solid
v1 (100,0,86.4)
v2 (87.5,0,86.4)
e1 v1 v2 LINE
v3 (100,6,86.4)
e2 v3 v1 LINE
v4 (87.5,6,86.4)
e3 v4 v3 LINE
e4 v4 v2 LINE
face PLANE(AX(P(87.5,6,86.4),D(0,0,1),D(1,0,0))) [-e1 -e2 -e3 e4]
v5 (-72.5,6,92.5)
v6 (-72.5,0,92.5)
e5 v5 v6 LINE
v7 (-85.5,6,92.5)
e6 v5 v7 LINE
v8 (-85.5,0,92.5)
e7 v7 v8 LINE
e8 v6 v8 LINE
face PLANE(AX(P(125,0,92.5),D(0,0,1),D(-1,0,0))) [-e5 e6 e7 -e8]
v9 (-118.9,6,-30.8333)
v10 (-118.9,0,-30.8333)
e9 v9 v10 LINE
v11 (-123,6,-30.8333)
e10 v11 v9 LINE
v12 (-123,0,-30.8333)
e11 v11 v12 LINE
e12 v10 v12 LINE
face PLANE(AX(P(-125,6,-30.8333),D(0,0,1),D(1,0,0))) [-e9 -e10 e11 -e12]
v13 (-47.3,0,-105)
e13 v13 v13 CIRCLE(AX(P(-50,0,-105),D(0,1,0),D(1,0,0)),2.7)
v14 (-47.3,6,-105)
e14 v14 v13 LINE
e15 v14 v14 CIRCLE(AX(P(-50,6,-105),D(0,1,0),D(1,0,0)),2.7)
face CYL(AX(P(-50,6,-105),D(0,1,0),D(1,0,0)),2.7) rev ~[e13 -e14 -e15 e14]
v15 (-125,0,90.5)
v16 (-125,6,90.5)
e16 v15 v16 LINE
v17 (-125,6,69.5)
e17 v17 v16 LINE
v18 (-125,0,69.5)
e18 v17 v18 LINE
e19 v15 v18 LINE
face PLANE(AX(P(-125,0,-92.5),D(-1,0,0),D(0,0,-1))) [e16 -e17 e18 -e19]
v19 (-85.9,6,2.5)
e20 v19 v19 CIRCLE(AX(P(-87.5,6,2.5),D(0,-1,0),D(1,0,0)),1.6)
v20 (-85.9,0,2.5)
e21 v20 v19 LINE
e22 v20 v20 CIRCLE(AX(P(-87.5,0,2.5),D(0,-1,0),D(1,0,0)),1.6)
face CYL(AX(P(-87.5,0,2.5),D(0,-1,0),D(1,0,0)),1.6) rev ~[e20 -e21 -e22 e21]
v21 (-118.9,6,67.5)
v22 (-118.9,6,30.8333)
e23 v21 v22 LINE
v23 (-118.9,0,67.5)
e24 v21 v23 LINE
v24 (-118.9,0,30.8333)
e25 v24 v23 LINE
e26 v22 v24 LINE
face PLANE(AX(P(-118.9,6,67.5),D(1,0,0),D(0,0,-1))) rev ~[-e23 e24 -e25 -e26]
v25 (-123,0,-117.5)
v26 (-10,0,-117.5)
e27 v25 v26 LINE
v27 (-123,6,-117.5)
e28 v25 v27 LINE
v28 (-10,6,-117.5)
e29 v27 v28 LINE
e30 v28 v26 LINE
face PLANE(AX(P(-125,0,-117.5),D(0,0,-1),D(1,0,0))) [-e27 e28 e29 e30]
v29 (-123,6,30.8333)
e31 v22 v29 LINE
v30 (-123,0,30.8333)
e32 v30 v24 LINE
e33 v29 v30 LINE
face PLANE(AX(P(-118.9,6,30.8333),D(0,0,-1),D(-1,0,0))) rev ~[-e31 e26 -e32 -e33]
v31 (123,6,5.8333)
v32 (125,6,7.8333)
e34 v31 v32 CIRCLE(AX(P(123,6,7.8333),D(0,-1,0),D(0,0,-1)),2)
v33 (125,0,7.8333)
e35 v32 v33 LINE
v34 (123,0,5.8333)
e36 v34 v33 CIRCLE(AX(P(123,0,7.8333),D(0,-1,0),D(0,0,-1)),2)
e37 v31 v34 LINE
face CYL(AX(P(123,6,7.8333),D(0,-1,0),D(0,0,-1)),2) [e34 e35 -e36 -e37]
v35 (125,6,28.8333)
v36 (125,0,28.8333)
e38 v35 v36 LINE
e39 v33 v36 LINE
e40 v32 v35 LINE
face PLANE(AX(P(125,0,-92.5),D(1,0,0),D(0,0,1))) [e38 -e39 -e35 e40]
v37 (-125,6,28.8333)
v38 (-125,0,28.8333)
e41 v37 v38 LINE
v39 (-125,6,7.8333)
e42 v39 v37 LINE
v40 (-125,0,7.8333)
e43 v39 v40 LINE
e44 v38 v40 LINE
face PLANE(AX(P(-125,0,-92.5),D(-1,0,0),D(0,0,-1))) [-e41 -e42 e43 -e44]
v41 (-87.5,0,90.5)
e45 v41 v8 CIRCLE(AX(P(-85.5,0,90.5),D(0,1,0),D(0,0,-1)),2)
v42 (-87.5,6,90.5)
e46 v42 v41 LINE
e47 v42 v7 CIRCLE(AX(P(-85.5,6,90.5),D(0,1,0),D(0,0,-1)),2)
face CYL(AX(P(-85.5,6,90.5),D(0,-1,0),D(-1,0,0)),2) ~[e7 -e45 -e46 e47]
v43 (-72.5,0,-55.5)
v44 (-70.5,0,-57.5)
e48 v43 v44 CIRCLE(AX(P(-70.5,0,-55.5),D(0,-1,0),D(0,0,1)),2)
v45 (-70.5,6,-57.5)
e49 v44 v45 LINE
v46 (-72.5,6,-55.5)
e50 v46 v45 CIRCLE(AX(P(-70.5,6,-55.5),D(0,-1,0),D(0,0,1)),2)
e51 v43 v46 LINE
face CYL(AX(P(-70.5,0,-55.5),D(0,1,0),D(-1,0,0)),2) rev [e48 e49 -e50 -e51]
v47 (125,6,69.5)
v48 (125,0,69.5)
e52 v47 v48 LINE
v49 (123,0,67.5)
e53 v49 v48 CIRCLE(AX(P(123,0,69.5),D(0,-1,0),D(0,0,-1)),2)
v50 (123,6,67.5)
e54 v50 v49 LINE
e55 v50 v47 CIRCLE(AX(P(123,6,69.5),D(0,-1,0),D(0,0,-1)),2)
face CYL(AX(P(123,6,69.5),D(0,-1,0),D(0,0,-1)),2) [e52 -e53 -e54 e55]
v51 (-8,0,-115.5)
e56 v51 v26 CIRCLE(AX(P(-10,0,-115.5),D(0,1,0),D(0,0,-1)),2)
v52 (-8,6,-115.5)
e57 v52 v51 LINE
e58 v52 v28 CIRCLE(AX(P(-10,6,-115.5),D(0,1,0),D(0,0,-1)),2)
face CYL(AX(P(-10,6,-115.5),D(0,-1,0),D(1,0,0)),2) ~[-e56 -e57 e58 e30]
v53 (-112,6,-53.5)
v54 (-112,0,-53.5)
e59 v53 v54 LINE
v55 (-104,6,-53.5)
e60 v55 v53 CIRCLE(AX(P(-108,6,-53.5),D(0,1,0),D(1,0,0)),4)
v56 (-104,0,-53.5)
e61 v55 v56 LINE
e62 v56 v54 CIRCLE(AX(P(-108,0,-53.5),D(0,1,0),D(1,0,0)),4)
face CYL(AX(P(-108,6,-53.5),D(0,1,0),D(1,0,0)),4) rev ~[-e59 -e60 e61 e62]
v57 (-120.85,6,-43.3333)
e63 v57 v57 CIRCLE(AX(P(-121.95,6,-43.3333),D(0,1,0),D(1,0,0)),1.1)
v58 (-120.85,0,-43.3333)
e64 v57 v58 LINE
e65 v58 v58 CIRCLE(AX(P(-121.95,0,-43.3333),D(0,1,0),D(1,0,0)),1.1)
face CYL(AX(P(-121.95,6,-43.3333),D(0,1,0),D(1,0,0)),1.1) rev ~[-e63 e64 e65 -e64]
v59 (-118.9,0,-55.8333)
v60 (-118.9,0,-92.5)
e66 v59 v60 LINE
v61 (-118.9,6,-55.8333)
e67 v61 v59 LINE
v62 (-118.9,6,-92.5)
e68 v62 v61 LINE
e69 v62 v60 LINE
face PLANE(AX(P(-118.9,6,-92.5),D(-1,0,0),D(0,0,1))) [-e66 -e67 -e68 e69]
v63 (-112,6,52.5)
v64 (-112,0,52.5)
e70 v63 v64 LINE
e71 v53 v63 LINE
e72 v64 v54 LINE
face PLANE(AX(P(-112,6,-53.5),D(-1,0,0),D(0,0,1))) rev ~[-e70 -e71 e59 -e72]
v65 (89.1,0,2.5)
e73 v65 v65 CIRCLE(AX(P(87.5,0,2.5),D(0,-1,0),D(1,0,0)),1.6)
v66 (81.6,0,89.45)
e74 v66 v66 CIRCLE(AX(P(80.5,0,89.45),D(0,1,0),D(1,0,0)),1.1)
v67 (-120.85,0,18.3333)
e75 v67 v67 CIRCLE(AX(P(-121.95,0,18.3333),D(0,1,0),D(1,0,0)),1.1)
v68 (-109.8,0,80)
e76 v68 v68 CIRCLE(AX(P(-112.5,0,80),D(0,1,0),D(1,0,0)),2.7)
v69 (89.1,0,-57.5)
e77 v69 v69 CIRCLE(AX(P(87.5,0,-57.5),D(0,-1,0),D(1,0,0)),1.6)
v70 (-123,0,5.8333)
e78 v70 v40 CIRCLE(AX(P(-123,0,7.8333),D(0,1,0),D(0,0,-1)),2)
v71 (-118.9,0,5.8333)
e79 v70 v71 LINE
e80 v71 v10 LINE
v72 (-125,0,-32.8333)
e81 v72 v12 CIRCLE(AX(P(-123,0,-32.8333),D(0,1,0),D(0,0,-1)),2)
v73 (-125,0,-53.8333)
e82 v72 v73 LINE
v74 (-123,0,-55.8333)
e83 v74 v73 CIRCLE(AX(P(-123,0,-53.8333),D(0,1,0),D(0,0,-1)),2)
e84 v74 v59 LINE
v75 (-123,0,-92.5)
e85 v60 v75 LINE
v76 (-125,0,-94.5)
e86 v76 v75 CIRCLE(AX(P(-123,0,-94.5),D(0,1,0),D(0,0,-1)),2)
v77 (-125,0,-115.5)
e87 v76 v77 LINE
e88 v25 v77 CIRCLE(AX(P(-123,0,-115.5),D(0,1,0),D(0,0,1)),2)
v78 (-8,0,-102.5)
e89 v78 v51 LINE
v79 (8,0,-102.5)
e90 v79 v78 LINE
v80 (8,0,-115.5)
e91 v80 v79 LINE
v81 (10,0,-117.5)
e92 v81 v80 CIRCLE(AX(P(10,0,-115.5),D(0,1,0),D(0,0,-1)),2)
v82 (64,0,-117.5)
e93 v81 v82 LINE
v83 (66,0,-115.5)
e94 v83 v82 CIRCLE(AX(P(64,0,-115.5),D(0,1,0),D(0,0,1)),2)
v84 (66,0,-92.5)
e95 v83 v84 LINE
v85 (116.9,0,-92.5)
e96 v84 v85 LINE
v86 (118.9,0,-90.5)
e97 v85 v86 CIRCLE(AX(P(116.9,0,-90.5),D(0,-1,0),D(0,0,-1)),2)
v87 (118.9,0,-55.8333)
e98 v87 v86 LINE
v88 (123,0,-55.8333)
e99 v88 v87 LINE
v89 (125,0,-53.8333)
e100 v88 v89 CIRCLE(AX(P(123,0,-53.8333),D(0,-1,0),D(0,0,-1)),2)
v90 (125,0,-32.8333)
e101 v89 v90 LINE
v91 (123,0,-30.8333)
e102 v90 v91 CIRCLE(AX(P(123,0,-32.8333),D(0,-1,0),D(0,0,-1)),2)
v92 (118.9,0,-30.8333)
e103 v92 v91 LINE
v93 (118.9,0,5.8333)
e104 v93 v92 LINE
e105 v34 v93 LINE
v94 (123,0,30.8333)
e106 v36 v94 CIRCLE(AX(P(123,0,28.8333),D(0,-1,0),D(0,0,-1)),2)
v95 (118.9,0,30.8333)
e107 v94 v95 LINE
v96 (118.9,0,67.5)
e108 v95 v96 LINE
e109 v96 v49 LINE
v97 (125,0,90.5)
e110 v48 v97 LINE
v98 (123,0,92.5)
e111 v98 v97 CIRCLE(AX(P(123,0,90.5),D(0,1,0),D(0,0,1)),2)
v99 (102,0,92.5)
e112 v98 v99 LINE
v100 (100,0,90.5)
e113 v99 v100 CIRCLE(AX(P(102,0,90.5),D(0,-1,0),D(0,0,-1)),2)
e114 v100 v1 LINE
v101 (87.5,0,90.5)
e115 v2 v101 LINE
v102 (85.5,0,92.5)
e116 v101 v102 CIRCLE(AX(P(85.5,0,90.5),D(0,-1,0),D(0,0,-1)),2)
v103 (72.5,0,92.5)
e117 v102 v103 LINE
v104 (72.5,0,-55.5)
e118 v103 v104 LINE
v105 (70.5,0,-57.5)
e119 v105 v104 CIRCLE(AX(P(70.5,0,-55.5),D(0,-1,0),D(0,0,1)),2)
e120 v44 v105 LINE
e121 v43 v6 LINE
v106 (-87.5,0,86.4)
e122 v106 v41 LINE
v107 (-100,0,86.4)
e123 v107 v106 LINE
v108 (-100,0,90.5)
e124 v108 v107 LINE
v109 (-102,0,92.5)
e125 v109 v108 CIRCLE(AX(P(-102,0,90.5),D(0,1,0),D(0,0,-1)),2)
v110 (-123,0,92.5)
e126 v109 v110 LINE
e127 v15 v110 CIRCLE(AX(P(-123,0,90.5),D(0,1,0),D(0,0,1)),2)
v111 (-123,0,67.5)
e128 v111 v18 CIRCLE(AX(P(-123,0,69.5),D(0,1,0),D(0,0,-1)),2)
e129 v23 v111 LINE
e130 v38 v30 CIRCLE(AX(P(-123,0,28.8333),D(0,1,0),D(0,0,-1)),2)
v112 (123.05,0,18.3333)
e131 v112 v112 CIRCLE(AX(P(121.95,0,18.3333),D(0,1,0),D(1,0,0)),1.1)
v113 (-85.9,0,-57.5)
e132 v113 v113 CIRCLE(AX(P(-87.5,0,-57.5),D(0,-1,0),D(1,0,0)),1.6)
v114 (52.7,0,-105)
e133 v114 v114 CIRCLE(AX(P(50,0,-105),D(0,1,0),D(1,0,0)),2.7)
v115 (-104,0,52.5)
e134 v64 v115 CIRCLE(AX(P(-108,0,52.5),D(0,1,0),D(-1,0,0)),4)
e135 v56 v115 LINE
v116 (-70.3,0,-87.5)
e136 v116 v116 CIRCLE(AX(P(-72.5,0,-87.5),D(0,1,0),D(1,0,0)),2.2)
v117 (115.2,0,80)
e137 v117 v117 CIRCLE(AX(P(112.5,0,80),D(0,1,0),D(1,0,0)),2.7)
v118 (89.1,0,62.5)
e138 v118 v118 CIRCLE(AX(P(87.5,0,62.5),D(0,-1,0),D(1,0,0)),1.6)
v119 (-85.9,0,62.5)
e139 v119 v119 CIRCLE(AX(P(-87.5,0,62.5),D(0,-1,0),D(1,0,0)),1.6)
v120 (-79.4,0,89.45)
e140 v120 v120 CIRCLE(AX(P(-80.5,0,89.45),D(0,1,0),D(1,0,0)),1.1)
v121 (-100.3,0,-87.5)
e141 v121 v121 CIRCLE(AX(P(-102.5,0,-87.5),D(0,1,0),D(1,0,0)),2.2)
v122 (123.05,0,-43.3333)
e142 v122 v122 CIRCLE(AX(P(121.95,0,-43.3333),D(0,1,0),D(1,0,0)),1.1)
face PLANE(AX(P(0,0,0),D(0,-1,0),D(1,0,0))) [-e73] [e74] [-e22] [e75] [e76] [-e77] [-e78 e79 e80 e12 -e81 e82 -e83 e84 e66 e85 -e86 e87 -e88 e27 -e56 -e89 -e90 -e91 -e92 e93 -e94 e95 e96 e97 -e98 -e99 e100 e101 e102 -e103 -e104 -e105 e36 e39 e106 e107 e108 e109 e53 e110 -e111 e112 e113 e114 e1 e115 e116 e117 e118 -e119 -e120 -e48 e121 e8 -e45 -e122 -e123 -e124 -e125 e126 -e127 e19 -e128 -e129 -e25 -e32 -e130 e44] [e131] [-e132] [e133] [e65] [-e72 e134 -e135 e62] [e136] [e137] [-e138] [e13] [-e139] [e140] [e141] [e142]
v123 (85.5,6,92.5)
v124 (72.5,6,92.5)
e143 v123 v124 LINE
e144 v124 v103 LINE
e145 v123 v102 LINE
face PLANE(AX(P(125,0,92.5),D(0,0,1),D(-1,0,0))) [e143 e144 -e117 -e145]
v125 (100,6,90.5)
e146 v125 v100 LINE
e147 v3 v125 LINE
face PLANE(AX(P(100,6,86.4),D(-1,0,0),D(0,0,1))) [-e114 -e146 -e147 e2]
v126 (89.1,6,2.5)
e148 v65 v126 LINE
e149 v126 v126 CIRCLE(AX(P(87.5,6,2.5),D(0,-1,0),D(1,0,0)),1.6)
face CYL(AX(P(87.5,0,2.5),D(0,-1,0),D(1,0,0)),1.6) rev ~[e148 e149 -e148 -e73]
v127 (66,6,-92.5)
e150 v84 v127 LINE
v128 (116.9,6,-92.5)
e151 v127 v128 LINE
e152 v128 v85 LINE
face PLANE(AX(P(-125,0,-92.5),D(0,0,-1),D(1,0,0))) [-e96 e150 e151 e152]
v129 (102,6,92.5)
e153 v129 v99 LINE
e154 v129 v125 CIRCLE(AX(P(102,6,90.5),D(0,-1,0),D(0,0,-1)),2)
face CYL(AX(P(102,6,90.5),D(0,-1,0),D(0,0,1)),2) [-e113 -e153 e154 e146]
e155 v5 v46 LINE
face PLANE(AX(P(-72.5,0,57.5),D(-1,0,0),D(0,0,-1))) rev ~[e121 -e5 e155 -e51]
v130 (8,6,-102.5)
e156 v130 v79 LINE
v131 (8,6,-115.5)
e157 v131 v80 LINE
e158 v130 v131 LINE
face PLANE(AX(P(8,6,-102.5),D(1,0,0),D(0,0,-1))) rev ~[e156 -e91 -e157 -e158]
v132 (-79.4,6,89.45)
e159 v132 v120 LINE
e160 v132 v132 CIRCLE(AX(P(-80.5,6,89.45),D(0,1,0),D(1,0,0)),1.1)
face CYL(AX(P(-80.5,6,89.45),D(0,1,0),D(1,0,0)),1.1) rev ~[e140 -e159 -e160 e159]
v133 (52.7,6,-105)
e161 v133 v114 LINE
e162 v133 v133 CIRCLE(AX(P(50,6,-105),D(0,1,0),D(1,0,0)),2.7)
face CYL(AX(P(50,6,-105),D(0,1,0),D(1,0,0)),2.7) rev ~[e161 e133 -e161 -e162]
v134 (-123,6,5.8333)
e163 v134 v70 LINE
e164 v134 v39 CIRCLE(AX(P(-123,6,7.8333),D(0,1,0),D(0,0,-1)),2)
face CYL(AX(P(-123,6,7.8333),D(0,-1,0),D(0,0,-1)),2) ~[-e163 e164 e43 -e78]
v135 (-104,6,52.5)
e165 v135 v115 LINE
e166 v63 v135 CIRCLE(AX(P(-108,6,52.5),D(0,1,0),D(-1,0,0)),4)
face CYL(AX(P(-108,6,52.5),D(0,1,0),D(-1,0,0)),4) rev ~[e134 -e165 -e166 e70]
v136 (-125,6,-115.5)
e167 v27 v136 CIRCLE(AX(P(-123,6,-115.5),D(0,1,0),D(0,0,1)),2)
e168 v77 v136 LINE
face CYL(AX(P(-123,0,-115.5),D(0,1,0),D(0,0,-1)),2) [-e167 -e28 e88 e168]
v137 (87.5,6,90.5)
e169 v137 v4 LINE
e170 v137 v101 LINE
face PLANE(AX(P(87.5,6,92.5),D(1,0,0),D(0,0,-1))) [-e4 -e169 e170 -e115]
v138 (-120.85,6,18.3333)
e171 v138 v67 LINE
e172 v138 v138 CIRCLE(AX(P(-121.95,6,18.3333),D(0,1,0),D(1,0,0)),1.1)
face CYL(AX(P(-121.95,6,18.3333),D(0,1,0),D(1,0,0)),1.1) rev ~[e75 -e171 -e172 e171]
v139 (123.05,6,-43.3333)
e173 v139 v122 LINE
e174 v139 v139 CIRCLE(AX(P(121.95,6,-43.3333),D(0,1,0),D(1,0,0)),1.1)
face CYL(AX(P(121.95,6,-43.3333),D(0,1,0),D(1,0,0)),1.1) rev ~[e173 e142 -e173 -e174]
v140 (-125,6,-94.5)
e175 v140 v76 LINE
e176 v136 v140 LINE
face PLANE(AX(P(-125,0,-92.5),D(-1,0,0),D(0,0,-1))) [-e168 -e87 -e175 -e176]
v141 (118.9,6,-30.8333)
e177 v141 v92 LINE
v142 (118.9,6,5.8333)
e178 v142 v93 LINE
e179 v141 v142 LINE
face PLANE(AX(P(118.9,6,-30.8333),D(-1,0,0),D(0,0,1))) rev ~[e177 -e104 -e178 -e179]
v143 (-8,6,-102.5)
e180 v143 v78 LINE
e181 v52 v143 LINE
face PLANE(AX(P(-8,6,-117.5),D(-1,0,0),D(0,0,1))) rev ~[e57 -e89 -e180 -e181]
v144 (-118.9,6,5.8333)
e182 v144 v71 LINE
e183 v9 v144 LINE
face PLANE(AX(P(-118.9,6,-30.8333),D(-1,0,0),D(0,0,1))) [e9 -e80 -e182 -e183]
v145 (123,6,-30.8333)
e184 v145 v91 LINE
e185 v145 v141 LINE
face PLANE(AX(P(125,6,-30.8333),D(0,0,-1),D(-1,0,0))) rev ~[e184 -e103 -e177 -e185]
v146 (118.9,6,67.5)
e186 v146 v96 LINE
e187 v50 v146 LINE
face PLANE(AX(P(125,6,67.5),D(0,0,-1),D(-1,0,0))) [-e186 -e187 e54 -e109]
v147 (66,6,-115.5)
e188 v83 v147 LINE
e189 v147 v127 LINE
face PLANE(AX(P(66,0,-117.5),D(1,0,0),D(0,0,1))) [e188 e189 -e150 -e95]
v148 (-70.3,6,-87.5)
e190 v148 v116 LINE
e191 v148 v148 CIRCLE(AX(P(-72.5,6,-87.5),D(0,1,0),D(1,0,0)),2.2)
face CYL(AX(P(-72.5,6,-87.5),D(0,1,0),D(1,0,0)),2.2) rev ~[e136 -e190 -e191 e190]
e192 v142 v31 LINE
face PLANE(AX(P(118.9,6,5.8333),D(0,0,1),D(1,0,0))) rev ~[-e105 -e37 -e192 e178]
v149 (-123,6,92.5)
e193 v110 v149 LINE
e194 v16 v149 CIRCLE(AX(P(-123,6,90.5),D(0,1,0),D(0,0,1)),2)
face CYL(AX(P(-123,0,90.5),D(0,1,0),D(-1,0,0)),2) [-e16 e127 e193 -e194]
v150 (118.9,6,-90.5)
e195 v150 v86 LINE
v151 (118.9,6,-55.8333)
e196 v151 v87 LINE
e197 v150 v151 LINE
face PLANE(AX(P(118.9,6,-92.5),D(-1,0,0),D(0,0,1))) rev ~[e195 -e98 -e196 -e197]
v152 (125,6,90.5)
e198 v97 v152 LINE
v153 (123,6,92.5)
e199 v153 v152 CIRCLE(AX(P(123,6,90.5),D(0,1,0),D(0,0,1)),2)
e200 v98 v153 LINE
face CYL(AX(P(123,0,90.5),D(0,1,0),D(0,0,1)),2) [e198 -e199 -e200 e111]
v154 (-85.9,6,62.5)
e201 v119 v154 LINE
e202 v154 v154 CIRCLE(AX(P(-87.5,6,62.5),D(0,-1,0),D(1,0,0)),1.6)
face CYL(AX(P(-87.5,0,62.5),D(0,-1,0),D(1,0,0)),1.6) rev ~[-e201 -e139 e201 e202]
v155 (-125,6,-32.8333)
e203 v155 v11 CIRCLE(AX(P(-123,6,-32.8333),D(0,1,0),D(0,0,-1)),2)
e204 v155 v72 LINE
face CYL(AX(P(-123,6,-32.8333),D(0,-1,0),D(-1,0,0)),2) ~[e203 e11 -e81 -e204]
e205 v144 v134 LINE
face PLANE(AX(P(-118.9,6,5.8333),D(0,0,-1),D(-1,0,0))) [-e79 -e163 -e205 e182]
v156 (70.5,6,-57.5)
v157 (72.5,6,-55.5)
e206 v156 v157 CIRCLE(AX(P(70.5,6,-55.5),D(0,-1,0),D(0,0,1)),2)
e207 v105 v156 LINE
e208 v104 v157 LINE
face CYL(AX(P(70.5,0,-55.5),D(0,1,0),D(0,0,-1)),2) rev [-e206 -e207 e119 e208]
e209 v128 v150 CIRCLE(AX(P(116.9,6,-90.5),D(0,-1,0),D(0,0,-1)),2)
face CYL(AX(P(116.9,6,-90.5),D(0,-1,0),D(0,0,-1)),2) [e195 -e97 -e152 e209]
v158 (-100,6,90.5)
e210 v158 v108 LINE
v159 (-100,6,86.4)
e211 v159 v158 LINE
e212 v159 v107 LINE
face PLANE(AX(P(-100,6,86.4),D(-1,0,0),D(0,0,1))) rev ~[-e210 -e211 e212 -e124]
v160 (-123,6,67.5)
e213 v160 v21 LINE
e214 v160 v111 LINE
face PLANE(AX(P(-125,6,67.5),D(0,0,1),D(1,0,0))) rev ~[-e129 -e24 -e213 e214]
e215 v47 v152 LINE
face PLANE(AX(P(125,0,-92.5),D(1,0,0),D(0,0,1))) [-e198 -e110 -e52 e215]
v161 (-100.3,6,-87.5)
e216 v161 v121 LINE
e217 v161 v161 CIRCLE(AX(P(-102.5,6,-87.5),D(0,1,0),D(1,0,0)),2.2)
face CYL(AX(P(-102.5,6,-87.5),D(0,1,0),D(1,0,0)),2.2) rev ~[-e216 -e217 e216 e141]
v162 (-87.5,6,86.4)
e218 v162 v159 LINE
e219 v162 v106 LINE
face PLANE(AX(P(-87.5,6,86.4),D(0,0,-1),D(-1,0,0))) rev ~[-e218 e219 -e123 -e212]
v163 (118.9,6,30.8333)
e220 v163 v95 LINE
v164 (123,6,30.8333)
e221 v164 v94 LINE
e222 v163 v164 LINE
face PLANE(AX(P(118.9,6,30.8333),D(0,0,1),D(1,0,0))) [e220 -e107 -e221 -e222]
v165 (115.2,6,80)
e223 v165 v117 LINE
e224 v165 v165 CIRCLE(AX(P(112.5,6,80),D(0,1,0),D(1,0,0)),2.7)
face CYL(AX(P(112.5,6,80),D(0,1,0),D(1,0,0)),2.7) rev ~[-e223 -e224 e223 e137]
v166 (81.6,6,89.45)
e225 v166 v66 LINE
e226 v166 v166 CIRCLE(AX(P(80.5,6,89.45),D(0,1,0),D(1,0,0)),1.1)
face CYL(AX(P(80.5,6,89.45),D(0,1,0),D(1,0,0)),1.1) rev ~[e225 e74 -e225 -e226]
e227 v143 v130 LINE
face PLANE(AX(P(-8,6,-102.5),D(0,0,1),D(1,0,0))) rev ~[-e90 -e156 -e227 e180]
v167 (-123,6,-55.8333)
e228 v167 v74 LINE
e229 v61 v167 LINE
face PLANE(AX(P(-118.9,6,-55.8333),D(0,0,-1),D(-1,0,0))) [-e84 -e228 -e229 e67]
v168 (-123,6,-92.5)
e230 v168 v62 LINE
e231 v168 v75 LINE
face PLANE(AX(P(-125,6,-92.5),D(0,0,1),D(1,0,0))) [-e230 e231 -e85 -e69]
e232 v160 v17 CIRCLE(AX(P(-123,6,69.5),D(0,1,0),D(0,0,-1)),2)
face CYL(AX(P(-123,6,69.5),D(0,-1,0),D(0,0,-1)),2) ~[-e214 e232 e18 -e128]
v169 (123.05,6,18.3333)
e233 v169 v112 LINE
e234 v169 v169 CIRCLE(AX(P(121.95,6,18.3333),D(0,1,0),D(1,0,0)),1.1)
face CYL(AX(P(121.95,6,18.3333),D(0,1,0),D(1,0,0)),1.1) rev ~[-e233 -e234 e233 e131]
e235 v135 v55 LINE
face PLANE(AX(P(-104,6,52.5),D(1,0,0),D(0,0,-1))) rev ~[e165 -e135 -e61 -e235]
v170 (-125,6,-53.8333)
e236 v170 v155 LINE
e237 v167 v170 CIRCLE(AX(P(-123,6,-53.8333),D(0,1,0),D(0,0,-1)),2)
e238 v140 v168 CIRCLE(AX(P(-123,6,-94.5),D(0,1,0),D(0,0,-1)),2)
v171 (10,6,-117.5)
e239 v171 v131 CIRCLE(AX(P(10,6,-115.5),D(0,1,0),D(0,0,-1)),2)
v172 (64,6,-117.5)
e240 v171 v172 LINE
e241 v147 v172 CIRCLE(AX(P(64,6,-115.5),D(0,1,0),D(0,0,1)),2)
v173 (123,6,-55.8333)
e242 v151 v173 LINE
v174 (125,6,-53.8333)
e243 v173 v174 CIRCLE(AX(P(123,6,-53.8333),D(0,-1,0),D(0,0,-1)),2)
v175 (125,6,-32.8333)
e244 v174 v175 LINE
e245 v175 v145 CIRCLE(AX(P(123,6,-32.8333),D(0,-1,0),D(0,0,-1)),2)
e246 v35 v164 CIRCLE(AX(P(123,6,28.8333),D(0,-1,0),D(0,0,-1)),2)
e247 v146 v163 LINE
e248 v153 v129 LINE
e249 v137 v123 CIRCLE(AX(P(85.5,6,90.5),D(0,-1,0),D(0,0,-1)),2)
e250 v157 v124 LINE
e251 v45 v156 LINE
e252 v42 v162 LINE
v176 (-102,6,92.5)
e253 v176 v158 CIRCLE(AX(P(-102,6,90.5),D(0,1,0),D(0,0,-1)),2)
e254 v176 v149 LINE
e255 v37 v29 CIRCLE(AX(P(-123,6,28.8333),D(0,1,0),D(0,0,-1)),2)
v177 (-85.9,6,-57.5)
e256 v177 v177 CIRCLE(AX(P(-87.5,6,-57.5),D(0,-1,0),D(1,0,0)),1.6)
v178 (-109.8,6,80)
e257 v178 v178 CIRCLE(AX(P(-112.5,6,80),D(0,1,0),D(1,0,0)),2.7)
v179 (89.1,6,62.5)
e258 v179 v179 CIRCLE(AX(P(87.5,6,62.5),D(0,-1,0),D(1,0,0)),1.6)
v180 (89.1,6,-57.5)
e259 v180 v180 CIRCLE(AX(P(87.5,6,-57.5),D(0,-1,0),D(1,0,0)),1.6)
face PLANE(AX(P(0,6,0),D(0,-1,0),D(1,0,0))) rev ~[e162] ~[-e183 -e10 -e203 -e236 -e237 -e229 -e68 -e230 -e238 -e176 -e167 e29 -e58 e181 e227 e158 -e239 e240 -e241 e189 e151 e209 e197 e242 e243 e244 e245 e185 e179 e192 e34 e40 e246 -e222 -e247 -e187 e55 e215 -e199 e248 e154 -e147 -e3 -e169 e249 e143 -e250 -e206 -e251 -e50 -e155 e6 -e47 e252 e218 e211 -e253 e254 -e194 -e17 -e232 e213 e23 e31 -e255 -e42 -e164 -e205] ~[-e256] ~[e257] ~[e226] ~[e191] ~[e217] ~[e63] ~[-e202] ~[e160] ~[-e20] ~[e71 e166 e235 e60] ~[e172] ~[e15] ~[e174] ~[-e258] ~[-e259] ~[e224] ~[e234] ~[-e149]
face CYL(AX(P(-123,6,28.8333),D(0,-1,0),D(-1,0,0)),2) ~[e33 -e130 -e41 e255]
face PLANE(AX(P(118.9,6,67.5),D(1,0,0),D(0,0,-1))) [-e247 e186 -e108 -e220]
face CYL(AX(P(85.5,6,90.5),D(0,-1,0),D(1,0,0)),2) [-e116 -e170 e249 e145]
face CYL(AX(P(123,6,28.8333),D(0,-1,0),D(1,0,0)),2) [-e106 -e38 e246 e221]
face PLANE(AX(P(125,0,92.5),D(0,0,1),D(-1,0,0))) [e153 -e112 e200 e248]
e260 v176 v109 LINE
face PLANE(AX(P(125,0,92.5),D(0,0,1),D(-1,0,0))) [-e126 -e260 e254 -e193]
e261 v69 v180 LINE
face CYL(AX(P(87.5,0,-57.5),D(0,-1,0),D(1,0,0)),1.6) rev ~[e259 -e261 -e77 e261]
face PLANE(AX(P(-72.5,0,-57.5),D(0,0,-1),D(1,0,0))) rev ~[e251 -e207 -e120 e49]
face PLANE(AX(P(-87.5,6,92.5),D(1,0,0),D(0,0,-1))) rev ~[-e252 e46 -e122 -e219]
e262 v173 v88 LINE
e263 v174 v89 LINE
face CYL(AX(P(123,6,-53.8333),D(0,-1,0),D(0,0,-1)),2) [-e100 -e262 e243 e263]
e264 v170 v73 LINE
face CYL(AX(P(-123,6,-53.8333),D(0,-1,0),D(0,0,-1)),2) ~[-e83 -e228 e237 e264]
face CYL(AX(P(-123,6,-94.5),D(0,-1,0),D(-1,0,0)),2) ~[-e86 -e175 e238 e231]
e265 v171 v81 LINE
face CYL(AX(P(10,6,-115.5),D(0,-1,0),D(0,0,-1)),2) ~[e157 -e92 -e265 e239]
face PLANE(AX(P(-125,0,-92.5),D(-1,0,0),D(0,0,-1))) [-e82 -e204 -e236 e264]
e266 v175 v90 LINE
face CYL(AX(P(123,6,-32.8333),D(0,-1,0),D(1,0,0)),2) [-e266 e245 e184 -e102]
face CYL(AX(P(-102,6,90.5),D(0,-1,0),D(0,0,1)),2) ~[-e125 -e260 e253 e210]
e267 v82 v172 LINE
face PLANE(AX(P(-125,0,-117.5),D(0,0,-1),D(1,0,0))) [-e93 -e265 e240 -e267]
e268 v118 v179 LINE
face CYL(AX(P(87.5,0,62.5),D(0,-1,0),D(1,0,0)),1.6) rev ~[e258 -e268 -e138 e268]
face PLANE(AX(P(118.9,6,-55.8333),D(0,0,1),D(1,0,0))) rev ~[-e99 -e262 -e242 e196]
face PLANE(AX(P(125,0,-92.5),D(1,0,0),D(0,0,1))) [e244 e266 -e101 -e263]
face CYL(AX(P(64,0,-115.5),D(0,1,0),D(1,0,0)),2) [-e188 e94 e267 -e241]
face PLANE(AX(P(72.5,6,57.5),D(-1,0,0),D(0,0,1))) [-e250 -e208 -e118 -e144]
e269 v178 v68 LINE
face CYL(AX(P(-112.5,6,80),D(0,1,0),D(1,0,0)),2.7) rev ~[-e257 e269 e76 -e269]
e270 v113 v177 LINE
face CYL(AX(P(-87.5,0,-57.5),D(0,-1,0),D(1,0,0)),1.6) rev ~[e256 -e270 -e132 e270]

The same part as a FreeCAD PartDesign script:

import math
import FreeCAD as App
import Part
import Sketcher

V = App.Vector


def edges_at(feature, points):
    """Names of the edges that pass closest to the given points."""
    edges = feature.Shape.Edges
    near = lambda p: min(range(len(edges)), key=lambda i: edges[i].distToShape(Part.Vertex(*p))[0])
    return sorted({f"Edge{near(p) + 1}" for p in points})

doc = App.newDocument("Part")
body = doc.addObject("PartDesign::Body", "Body")

sketch1 = body.newObject("Sketcher::SketchObject", "Sketch")
sketch1.AttachmentSupport = (doc.getObject("XZ_Plane"), [""])
sketch1.MapMode = "FlatFace"
sketch1.addGeometry([
    Part.LineSegment(V(125, -92, 0), V(-125, -92, 0)),
    Part.LineSegment(V(-125, -92, 0), V(-125, 92, 0)),
    Part.LineSegment(V(-125, 92, 0), V(125, 92, 0)),
    Part.LineSegment(V(125, 92, 0), V(125, -92, 0)),
    Part.LineSegment(V(-72, 58, 0), V(-72, -58, 0)),
    Part.LineSegment(V(-72, -58, 0), V(72, -58, 0)),
    Part.LineSegment(V(72, -58, 0), V(72, 58, 0)),
    Part.LineSegment(V(72, 58, 0), V(-72, 58, 0)),
], False)
sketch1.addConstraint([
    Sketcher.Constraint("Coincident", 0, 2, 1, 1),
    Sketcher.Constraint("Coincident", 1, 2, 2, 1),
    Sketcher.Constraint("Coincident", 2, 2, 3, 1),
    Sketcher.Constraint("Coincident", 3, 2, 0, 1),
    Sketcher.Constraint("Coincident", 4, 2, 5, 1),
    Sketcher.Constraint("Coincident", 5, 2, 6, 1),
    Sketcher.Constraint("Coincident", 6, 2, 7, 1),
    Sketcher.Constraint("Coincident", 7, 2, 4, 1),
    Sketcher.Constraint("Horizontal", 0),
    Sketcher.Constraint("Vertical", 1),
    Sketcher.Constraint("Horizontal", 2),
    Sketcher.Constraint("Vertical", 3),
    Sketcher.Constraint("Vertical", 4),
    Sketcher.Constraint("Horizontal", 5),
    Sketcher.Constraint("Vertical", 6),
    Sketcher.Constraint("Horizontal", 7),
    Sketcher.Constraint("Symmetric", 0, 2, 2, 2, -1, 1),
    Sketcher.Constraint("Symmetric", 4, 2, 6, 2, -1, 1),
    Sketcher.Constraint("DistanceX", 0, 2, 0, 1, 250.0),
    Sketcher.Constraint("DistanceX", 5, 1, 5, 2, 145.0),
    Sketcher.Constraint("DistanceY", 1, 1, 1, 2, 185.0),
    Sketcher.Constraint("DistanceY", 0, 2, 4, 2, 35.0),
])
pad1 = body.newObject("PartDesign::Pad", "Pad")
pad1.Profile = sketch1
pad1.Length = 6
pad1.Reversed = True

sketch2 = body.newObject("Sketcher::SketchObject", "Sketch001")
sketch2.AttachmentSupport = (doc.getObject("XZ_Plane"), [""])
sketch2.MapMode = "FlatFace"
sketch2.AttachmentOffset = App.Placement(V(0, 0, -6), App.Rotation())
sketch2.addGeometry([
    Part.LineSegment(V(72, 92, 0), V(72, 58, 0)),
    Part.LineSegment(V(72, 58, 0), V(-72, 58, 0)),
    Part.LineSegment(V(-72, 58, 0), V(-72, 92, 0)),
    Part.LineSegment(V(-72, 92, 0), V(72, 92, 0)),
], False)
sketch2.addConstraint([
    Sketcher.Constraint("Coincident", 0, 2, 1, 1),
    Sketcher.Constraint("Coincident", 1, 2, 2, 1),
    Sketcher.Constraint("Coincident", 2, 2, 3, 1),
    Sketcher.Constraint("Coincident", 3, 2, 0, 1),
    Sketcher.Constraint("Vertical", 0),
    Sketcher.Constraint("Horizontal", 1),
    Sketcher.Constraint("Vertical", 2),
    Sketcher.Constraint("Horizontal", 3),
    Sketcher.Constraint("DistanceX", 1, 2, 1, 1, 145.0),
    Sketcher.Constraint("DistanceY", 0, 2, 0, 1, 35.0),
    Sketcher.Constraint("DistanceX", -1, 1, 0, 2, 72.5),
    Sketcher.Constraint("DistanceY", -1, 1, 0, 2, 57.5),
])
pocket1 = body.newObject("PartDesign::Pocket", "Pocket")
pocket1.Profile = sketch2
pocket1.Type = "ThroughAll"
pocket1.Reversed = True

sketch3 = body.newObject("Sketcher::SketchObject", "Sketch002")
sketch3.AttachmentSupport = (doc.getObject("XZ_Plane"), [""])
sketch3.MapMode = "FlatFace"
sketch3.addGeometry([
    Part.LineSegment(V(66, -92, 0), V(-125, -92, 0)),
    Part.LineSegment(V(-125, -92, 0), V(-125, -118, 0)),
    Part.LineSegment(V(-125, -118, 0), V(66, -118, 0)),
    Part.LineSegment(V(66, -118, 0), V(66, -92, 0)),
], False)
sketch3.addConstraint([
    Sketcher.Constraint("Coincident", 0, 2, 1, 1),
    Sketcher.Constraint("Coincident", 1, 2, 2, 1),
    Sketcher.Constraint("Coincident", 2, 2, 3, 1),
    Sketcher.Constraint("Coincident", 3, 2, 0, 1),
    Sketcher.Constraint("Horizontal", 0),
    Sketcher.Constraint("Vertical", 1),
    Sketcher.Constraint("Horizontal", 2),
    Sketcher.Constraint("Vertical", 3),
    Sketcher.Constraint("DistanceY", 1, 2, 1, 1, 25.0),
    Sketcher.Constraint("DistanceX", 0, 2, 0, 1, 191.0),
    Sketcher.Constraint("DistanceX", 0, 2, -1, 1, 125.0),
    Sketcher.Constraint("DistanceY", 0, 2, -1, 1, 92.5),
])
pad2 = body.newObject("PartDesign::Pad", "Pad001")
pad2.Profile = sketch3
pad2.Length = 6
pad2.Reversed = True

sketch4 = body.newObject("Sketcher::SketchObject", "Sketch003")
sketch4.AttachmentSupport = (doc.getObject("XZ_Plane"), [""])
sketch4.MapMode = "FlatFace"
sketch4.AttachmentOffset = App.Placement(V(0, 0, -6), App.Rotation())
sketch4.addGeometry([
    Part.ArcOfCircle(Part.Circle(V(-108, -53.5, 0), V(0, 0, 1), 4), math.radians(180), math.radians(360)),
    Part.LineSegment(V(-112, -53.5, 0), V(-112, 52.5, 0)),
    Part.ArcOfCircle(Part.Circle(V(-108, 52.5, 0), V(0, 0, 1), 4), math.radians(0), math.radians(180)),
    Part.LineSegment(V(-104, 52.5, 0), V(-104, -53.5, 0)),
], False)
sketch4.addConstraint([
    Sketcher.Constraint("Tangent", 0, 1, 1, 1),
    Sketcher.Constraint("Tangent", 1, 2, 2, 2),
    Sketcher.Constraint("Tangent", 2, 1, 3, 1),
    Sketcher.Constraint("Tangent", 3, 2, 0, 2),
    Sketcher.Constraint("Vertical", 1),
    Sketcher.Constraint("Vertical", 3),
    Sketcher.Constraint("Radius", 0, 4.0),
    Sketcher.Constraint("DistanceX", 0, 3, -1, 1, 108.0),
    Sketcher.Constraint("DistanceY", 1, 1, 1, 2, 106.0),
    Sketcher.Constraint("DistanceY", 0, 3, -1, 1, 53.5),
])
pocket2 = body.newObject("PartDesign::Pocket", "Pocket001")
pocket2.Profile = sketch4
pocket2.Type = "ThroughAll"
pocket2.Reversed = True

sketch5 = body.newObject("Sketcher::SketchObject", "Sketch004")
sketch5.AttachmentSupport = (doc.getObject("XZ_Plane"), [""])
sketch5.MapMode = "FlatFace"
sketch5.addGeometry([
    Part.Circle(V(-87.5, 62.5, 0), V(0, 0, 1), 1.6),
    Part.Circle(V(-87.5, 2.5, 0), V(0, 0, 1), 1.6),
    Part.Circle(V(-87.5, -57.5, 0), V(0, 0, 1), 1.6),
    Part.Circle(V(87.5, 62.5, 0), V(0, 0, 1), 1.6),
    Part.Circle(V(87.5, 2.5, 0), V(0, 0, 1), 1.6),
    Part.Circle(V(87.5, -57.5, 0), V(0, 0, 1), 1.6),
], False)
sketch5.addConstraint([
    Sketcher.Constraint("Equal", 0, 1),
    Sketcher.Constraint("Equal", 1, 2),
    Sketcher.Constraint("Equal", 2, 3),
    Sketcher.Constraint("Equal", 3, 4),
    Sketcher.Constraint("Equal", 4, 5),
    Sketcher.Constraint("Symmetric", 0, 3, 3, 3, -2),
    Sketcher.Constraint("Symmetric", 1, 3, 4, 3, -2),
    Sketcher.Constraint("Symmetric", 2, 3, 5, 3, -2),
    Sketcher.Constraint("Vertical", 0, 3, 1, 3),
    Sketcher.Constraint("Vertical", 1, 3, 2, 3),
    Sketcher.Constraint("Diameter", 0, 3.2),
    Sketcher.Constraint("DistanceY", 1, 3, 0, 3, 60.0),
    Sketcher.Constraint("DistanceY", 2, 3, 1, 3, 60.0),
    Sketcher.Constraint("DistanceX", 0, 3, 3, 3, 175.0),
    Sketcher.Constraint("DistanceY", -1, 1, 0, 3, 62.5),
])
pocket3 = body.newObject("PartDesign::Pocket", "Pocket002")
pocket3.Profile = sketch5
pocket3.Type = "ThroughAll"

sketch6 = body.newObject("Sketcher::SketchObject", "Sketch005")
sketch6.AttachmentSupport = (doc.getObject("XZ_Plane"), [""])
sketch6.MapMode = "FlatFace"
sketch6.AttachmentOffset = App.Placement(V(0, 0, -6), App.Rotation())
sketch6.addGeometry([
    Part.Circle(V(-102.5, -87.5, 0), V(0, 0, 1), 2.2),
    Part.Circle(V(-72.5, -87.5, 0), V(0, 0, 1), 2.2),
    Part.Circle(V(-50, -105, 0), V(0, 0, 1), 2.7),
    Part.Circle(V(50, -105, 0), V(0, 0, 1), 2.7),
    Part.Circle(V(-112.5, 80, 0), V(0, 0, 1), 2.7),
    Part.Circle(V(112.5, 80, 0), V(0, 0, 1), 2.7),
], False)
sketch6.addConstraint([
    Sketcher.Constraint("Equal", 0, 1),
    Sketcher.Constraint("Equal", 2, 3),
    Sketcher.Constraint("Equal", 3, 4),
    Sketcher.Constraint("Equal", 4, 5),
    Sketcher.Constraint("Symmetric", 2, 3, 3, 3, -2),
    Sketcher.Constraint("Symmetric", 4, 3, 5, 3, -2),
    Sketcher.Constraint("Horizontal", 0, 3, 1, 3),
    Sketcher.Constraint("Diameter", 0, 4.4),
    Sketcher.Constraint("Diameter", 2, 5.4),
    Sketcher.Constraint("DistanceX", 2, 3, -1, 1, 50.0),
    Sketcher.Constraint("DistanceX", 0, 3, 1, 3, 30.0),
    Sketcher.Constraint("DistanceY", 2, 3, -1, 1, 105.0),
    Sketcher.Constraint("DistanceY", -1, 1, 4, 3, 80.0),
    Sketcher.Constraint("DistanceX", 4, 3, 0, 3, 10.0),
    Sketcher.Constraint("DistanceX", 4, 3, 5, 3, 225.0),
    Sketcher.Constraint("DistanceY", 0, 3, -1, 1, 87.5),
])
pocket4 = body.newObject("PartDesign::Pocket", "Pocket003")
pocket4.Profile = sketch6
pocket4.Type = "ThroughAll"
pocket4.Reversed = True

sketch7 = body.newObject("Sketcher::SketchObject", "Sketch006")
sketch7.AttachmentSupport = (doc.getObject("XZ_Plane"), [""])
sketch7.MapMode = "FlatFace"
sketch7.AttachmentOffset = App.Placement(V(0, 0, -6), App.Rotation())
sketch7.addGeometry([
    Part.LineSegment(V(8, -102, 0), V(8, -118, 0)),
    Part.LineSegment(V(8, -118, 0), V(-8, -118, 0)),
    Part.LineSegment(V(-8, -118, 0), V(-8, -102, 0)),
    Part.LineSegment(V(-8, -102, 0), V(8, -102, 0)),
], False)
sketch7.addConstraint([
    Sketcher.Constraint("Coincident", 0, 2, 1, 1),
    Sketcher.Constraint("Coincident", 1, 2, 2, 1),
    Sketcher.Constraint("Coincident", 2, 2, 3, 1),
    Sketcher.Constraint("Coincident", 3, 2, 0, 1),
    Sketcher.Constraint("Vertical", 0),
    Sketcher.Constraint("Horizontal", 1),
    Sketcher.Constraint("Vertical", 2),
    Sketcher.Constraint("Horizontal", 3),
    Sketcher.Constraint("DistanceX", 1, 2, 1, 1, 16.0),
    Sketcher.Constraint("DistanceY", 0, 2, 0, 1, 15.0),
    Sketcher.Constraint("DistanceX", -1, 1, 0, 2, 8.0),
    Sketcher.Constraint("DistanceY", 0, 2, -1, 1, 117.5),
])
pocket5 = body.newObject("PartDesign::Pocket", "Pocket004")
pocket5.Profile = sketch7
pocket5.Type = "ThroughAll"
pocket5.Reversed = True

sketch8 = body.newObject("Sketcher::SketchObject", "Sketch007")
sketch8.AttachmentSupport = (doc.getObject("XZ_Plane"), [""])
sketch8.MapMode = "FlatFace"
sketch8.AttachmentOffset = App.Placement(V(0, 0, -6), App.Rotation())
sketch8.addGeometry([
    Part.LineSegment(V(-118.9, -92.5, 0), V(-125, -92.5, 0)),
    Part.LineSegment(V(-125, -92.5, 0), V(-125, -55.8, 0)),
    Part.LineSegment(V(-125, -55.8, 0), V(-118.9, -55.8, 0)),
    Part.LineSegment(V(-118.9, -55.8, 0), V(-118.9, -92.5, 0)),
    Part.LineSegment(V(-118.9, 30.8, 0), V(-125, 30.8, 0)),
    Part.LineSegment(V(-125, 30.8, 0), V(-125, 67.5, 0)),
    Part.LineSegment(V(-125, 67.5, 0), V(-118.9, 67.5, 0)),
    Part.LineSegment(V(-118.9, 67.5, 0), V(-118.9, 30.8, 0)),
    Part.LineSegment(V(-118.9, -30.8, 0), V(-125, -30.8, 0)),
    Part.LineSegment(V(-125, -30.8, 0), V(-125, 5.8, 0)),
    Part.LineSegment(V(-125, 5.8, 0), V(-118.9, 5.8, 0)),
    Part.LineSegment(V(-118.9, 5.8, 0), V(-118.9, -30.8, 0)),
    Part.LineSegment(V(118.9, 67.5, 0), V(125, 67.5, 0)),
    Part.LineSegment(V(125, 67.5, 0), V(125, 30.8, 0)),
    Part.LineSegment(V(125, 30.8, 0), V(118.9, 30.8, 0)),
    Part.LineSegment(V(118.9, 30.8, 0), V(118.9, 67.5, 0)),
    Part.LineSegment(V(118.9, -55.8, 0), V(125, -55.8, 0)),
    Part.LineSegment(V(125, -55.8, 0), V(125, -92.5, 0)),
    Part.LineSegment(V(125, -92.5, 0), V(118.9, -92.5, 0)),
    Part.LineSegment(V(118.9, -92.5, 0), V(118.9, -55.8, 0)),
    Part.LineSegment(V(118.9, 5.8, 0), V(125, 5.8, 0)),
    Part.LineSegment(V(125, 5.8, 0), V(125, -30.8, 0)),
    Part.LineSegment(V(125, -30.8, 0), V(118.9, -30.8, 0)),
    Part.LineSegment(V(118.9, -30.8, 0), V(118.9, 5.8, 0)),
    Part.Circle(V(122, -43.3, 0), V(0, 0, 1), 1.1),
    Part.Circle(V(122, 18.3, 0), V(0, 0, 1), 1.1),
    Part.Circle(V(-122, 18.3, 0), V(0, 0, 1), 1.1),
    Part.Circle(V(-122, -43.3, 0), V(0, 0, 1), 1.1),
], False)
sketch8.addConstraint([
    Sketcher.Constraint("Coincident", 0, 2, 1, 1),
    Sketcher.Constraint("Coincident", 1, 2, 2, 1),
    Sketcher.Constraint("Coincident", 2, 2, 3, 1),
    Sketcher.Constraint("Coincident", 3, 2, 0, 1),
    Sketcher.Constraint("Coincident", 4, 2, 5, 1),
    Sketcher.Constraint("Coincident", 5, 2, 6, 1),
    Sketcher.Constraint("Coincident", 6, 2, 7, 1),
    Sketcher.Constraint("Coincident", 7, 2, 4, 1),
    Sketcher.Constraint("Coincident", 8, 2, 9, 1),
    Sketcher.Constraint("Coincident", 9, 2, 10, 1),
    Sketcher.Constraint("Coincident", 10, 2, 11, 1),
    Sketcher.Constraint("Coincident", 11, 2, 8, 1),
    Sketcher.Constraint("Coincident", 12, 2, 13, 1),
    Sketcher.Constraint("Coincident", 13, 2, 14, 1),
    Sketcher.Constraint("Coincident", 14, 2, 15, 1),
    Sketcher.Constraint("Coincident", 15, 2, 12, 1),
    Sketcher.Constraint("Coincident", 16, 2, 17, 1),
    Sketcher.Constraint("Coincident", 17, 2, 18, 1),
    Sketcher.Constraint("Coincident", 18, 2, 19, 1),
    Sketcher.Constraint("Coincident", 19, 2, 16, 1),
    Sketcher.Constraint("Coincident", 20, 2, 21, 1),
    Sketcher.Constraint("Coincident", 21, 2, 22, 1),
    Sketcher.Constraint("Coincident", 22, 2, 23, 1),
    Sketcher.Constraint("Coincident", 23, 2, 20, 1),
    Sketcher.Constraint("Horizontal", 0),
    Sketcher.Constraint("Vertical", 1),
    Sketcher.Constraint("Horizontal", 2),
    Sketcher.Constraint("Vertical", 3),
    Sketcher.Constraint("Horizontal", 4),
    Sketcher.Constraint("Vertical", 5),
    Sketcher.Constraint("Horizontal", 6),
    Sketcher.Constraint("Vertical", 7),
    Sketcher.Constraint("Horizontal", 8),
    Sketcher.Constraint("Vertical", 9),
    Sketcher.Constraint("Horizontal", 10),
    Sketcher.Constraint("Vertical", 11),
    Sketcher.Constraint("Horizontal", 12),
    Sketcher.Constraint("Vertical", 13),
    Sketcher.Constraint("Horizontal", 14),
    Sketcher.Constraint("Vertical", 15),
    Sketcher.Constraint("Horizontal", 16),
    Sketcher.Constraint("Vertical", 17),
    Sketcher.Constraint("Horizontal", 18),
    Sketcher.Constraint("Vertical", 19),
    Sketcher.Constraint("Horizontal", 20),
    Sketcher.Constraint("Vertical", 21),
    Sketcher.Constraint("Horizontal", 22),
    Sketcher.Constraint("Vertical", 23),
    Sketcher.Constraint("Equal", 24, 25),
    Sketcher.Constraint("Equal", 25, 26),
    Sketcher.Constraint("Equal", 26, 27),
    Sketcher.Constraint("Symmetric", 8, 2, 13, 2, -1, 1),
    Sketcher.Constraint("Symmetric", 4, 2, 21, 2, -1, 1),
    Sketcher.Constraint("Symmetric", 25, 3, 26, 3, -2),
    Sketcher.Constraint("Symmetric", 24, 3, 27, 3, -2),
    Sketcher.Constraint("Symmetric", 5, 2, 12, 2, -2),
    Sketcher.Constraint("Symmetric", 7, 2, 14, 2, -2),
    Sketcher.Constraint("Symmetric", 1, 2, 16, 2, -2),
    Sketcher.Constraint("Symmetric", 3, 2, 18, 2, -2),
    Sketcher.Constraint("Symmetric", 10, 2, 23, 2, -2),
    Sketcher.Constraint("Vertical", 24, 3, 25, 3),
    Sketcher.Constraint("Vertical", 1, 2, 4, 2),
    Sketcher.Constraint("Vertical", 3, 2, 6, 2),
    Sketcher.Constraint("Vertical", 7, 2, 10, 2),
    Sketcher.Constraint("Equal", 3, 5),
    Sketcher.Constraint("Equal", 7, 9),
    Sketcher.Constraint("Diameter", 24, 2.2),
    Sketcher.Constraint("DistanceX", 0, 2, 0, 1, 6.1),
    Sketcher.Constraint("DistanceY", 1, 2, 8, 2, 25.0),
    Sketcher.Constraint("DistanceY", 9, 2, 4, 2, 25.0),
    Sketcher.Constraint("DistanceY", 1, 2, 27, 3, 12.5),
    Sketcher.Constraint("DistanceY", 26, 3, 4, 2, 12.5),
    Sketcher.Constraint("DistanceX", 0, 2, -1, 1, 125.0),
    Sketcher.Constraint("DistanceY", 0, 2, -1, 1, 92.5),
    Sketcher.Constraint("DistanceX", 26, 3, 25, 3, 243.9),
])
pocket6 = body.newObject("PartDesign::Pocket", "Pocket005")
pocket6.Profile = sketch8
pocket6.Type = "ThroughAll"
pocket6.Reversed = True

sketch9 = body.newObject("Sketcher::SketchObject", "Sketch008")
sketch9.AttachmentSupport = (doc.getObject("XZ_Plane"), [""])
sketch9.MapMode = "FlatFace"
sketch9.AttachmentOffset = App.Placement(V(0, 0, -6), App.Rotation())
sketch9.addGeometry([
    Part.LineSegment(V(-100, 86.4, 0), V(-100, 92.5, 0)),
    Part.LineSegment(V(-100, 92.5, 0), V(-87.5, 92.5, 0)),
    Part.LineSegment(V(-87.5, 92.5, 0), V(-87.5, 86.4, 0)),
    Part.LineSegment(V(-87.5, 86.4, 0), V(-100, 86.4, 0)),
    Part.LineSegment(V(87.5, 86.4, 0), V(87.5, 92.5, 0)),
    Part.LineSegment(V(87.5, 92.5, 0), V(100, 92.5, 0)),
    Part.LineSegment(V(100, 92.5, 0), V(100, 86.4, 0)),
    Part.LineSegment(V(100, 86.4, 0), V(87.5, 86.4, 0)),
    Part.Circle(V(-80.5, 89.5, 0), V(0, 0, 1), 1.1),
    Part.Circle(V(80.5, 89.5, 0), V(0, 0, 1), 1.1),
], False)
sketch9.addConstraint([
    Sketcher.Constraint("Coincident", 0, 2, 1, 1),
    Sketcher.Constraint("Coincident", 1, 2, 2, 1),
    Sketcher.Constraint("Coincident", 2, 2, 3, 1),
    Sketcher.Constraint("Coincident", 3, 2, 0, 1),
    Sketcher.Constraint("Coincident", 4, 2, 5, 1),
    Sketcher.Constraint("Coincident", 5, 2, 6, 1),
    Sketcher.Constraint("Coincident", 6, 2, 7, 1),
    Sketcher.Constraint("Coincident", 7, 2, 4, 1),
    Sketcher.Constraint("Vertical", 0),
    Sketcher.Constraint("Horizontal", 1),
    Sketcher.Constraint("Vertical", 2),
    Sketcher.Constraint("Horizontal", 3),
    Sketcher.Constraint("Vertical", 4),
    Sketcher.Constraint("Horizontal", 5),
    Sketcher.Constraint("Vertical", 6),
    Sketcher.Constraint("Horizontal", 7),
    Sketcher.Constraint("Equal", 8, 9),
    Sketcher.Constraint("Symmetric", 8, 3, 9, 3, -2),
    Sketcher.Constraint("Symmetric", 1, 2, 4, 2, -2),
    Sketcher.Constraint("Symmetric", 3, 2, 6, 2, -2),
    Sketcher.Constraint("DistanceX", 1, 1, 1, 2, 12.5),
    Sketcher.Constraint("Diameter", 8, 2.2),
    Sketcher.Constraint("DistanceY", 0, 1, 0, 2, 6.1),
    Sketcher.Constraint("DistanceX", 0, 2, -1, 1, 100.0),
    Sketcher.Constraint("DistanceX", 8, 3, 9, 3, 161.0),
    Sketcher.Constraint("DistanceY", -1, 1, 0, 2, 92.5),
    Sketcher.Constraint("DistanceY", -1, 1, 8, 3, 89.45),
])
pocket7 = body.newObject("PartDesign::Pocket", "Pocket006")
pocket7.Profile = sketch9
pocket7.Type = "ThroughAll"
pocket7.Reversed = True
doc.recompute()

fillet = body.newObject("PartDesign::Fillet", "Fillet")
fillet.Base = (pocket7, edges_at(pocket7, [
    (125, 3, 92.5),
    (72.5, 3, -57.5),
    (-125, 3, 92.5),
    (-72.5, 3, -57.5),
    (66, 3, -117.5),
    (-125, 3, -117.5),
    (8, 3, -117.5),
    (-8, 3, -117.5),
    (118.9, 3, -92.5),
]))
fillet.Radius = 2
doc.recompute()

fillet2 = body.newObject("PartDesign::Fillet", "Fillet001")
fillet2.Base = (fillet, edges_at(fillet, [
    (125, 3, -55.833),
    (125, 3, -30.833),
    (125, 3, 5.833),
    (125, 3, 30.833),
    (125, 3, 67.5),
    (-125, 3, 67.5),
    (-125, 3, 30.833),
    (-125, 3, 5.833),
    (-125, 3, -30.833),
    (-125, 3, -55.833),
    (-125, 3, -92.5),
    (-100, 3, 92.5),
    (-87.5, 3, 92.5),
    (87.5, 3, 92.5),
    (100, 3, 92.5),
]))
fillet2.Radius = 2

doc.recompute()
